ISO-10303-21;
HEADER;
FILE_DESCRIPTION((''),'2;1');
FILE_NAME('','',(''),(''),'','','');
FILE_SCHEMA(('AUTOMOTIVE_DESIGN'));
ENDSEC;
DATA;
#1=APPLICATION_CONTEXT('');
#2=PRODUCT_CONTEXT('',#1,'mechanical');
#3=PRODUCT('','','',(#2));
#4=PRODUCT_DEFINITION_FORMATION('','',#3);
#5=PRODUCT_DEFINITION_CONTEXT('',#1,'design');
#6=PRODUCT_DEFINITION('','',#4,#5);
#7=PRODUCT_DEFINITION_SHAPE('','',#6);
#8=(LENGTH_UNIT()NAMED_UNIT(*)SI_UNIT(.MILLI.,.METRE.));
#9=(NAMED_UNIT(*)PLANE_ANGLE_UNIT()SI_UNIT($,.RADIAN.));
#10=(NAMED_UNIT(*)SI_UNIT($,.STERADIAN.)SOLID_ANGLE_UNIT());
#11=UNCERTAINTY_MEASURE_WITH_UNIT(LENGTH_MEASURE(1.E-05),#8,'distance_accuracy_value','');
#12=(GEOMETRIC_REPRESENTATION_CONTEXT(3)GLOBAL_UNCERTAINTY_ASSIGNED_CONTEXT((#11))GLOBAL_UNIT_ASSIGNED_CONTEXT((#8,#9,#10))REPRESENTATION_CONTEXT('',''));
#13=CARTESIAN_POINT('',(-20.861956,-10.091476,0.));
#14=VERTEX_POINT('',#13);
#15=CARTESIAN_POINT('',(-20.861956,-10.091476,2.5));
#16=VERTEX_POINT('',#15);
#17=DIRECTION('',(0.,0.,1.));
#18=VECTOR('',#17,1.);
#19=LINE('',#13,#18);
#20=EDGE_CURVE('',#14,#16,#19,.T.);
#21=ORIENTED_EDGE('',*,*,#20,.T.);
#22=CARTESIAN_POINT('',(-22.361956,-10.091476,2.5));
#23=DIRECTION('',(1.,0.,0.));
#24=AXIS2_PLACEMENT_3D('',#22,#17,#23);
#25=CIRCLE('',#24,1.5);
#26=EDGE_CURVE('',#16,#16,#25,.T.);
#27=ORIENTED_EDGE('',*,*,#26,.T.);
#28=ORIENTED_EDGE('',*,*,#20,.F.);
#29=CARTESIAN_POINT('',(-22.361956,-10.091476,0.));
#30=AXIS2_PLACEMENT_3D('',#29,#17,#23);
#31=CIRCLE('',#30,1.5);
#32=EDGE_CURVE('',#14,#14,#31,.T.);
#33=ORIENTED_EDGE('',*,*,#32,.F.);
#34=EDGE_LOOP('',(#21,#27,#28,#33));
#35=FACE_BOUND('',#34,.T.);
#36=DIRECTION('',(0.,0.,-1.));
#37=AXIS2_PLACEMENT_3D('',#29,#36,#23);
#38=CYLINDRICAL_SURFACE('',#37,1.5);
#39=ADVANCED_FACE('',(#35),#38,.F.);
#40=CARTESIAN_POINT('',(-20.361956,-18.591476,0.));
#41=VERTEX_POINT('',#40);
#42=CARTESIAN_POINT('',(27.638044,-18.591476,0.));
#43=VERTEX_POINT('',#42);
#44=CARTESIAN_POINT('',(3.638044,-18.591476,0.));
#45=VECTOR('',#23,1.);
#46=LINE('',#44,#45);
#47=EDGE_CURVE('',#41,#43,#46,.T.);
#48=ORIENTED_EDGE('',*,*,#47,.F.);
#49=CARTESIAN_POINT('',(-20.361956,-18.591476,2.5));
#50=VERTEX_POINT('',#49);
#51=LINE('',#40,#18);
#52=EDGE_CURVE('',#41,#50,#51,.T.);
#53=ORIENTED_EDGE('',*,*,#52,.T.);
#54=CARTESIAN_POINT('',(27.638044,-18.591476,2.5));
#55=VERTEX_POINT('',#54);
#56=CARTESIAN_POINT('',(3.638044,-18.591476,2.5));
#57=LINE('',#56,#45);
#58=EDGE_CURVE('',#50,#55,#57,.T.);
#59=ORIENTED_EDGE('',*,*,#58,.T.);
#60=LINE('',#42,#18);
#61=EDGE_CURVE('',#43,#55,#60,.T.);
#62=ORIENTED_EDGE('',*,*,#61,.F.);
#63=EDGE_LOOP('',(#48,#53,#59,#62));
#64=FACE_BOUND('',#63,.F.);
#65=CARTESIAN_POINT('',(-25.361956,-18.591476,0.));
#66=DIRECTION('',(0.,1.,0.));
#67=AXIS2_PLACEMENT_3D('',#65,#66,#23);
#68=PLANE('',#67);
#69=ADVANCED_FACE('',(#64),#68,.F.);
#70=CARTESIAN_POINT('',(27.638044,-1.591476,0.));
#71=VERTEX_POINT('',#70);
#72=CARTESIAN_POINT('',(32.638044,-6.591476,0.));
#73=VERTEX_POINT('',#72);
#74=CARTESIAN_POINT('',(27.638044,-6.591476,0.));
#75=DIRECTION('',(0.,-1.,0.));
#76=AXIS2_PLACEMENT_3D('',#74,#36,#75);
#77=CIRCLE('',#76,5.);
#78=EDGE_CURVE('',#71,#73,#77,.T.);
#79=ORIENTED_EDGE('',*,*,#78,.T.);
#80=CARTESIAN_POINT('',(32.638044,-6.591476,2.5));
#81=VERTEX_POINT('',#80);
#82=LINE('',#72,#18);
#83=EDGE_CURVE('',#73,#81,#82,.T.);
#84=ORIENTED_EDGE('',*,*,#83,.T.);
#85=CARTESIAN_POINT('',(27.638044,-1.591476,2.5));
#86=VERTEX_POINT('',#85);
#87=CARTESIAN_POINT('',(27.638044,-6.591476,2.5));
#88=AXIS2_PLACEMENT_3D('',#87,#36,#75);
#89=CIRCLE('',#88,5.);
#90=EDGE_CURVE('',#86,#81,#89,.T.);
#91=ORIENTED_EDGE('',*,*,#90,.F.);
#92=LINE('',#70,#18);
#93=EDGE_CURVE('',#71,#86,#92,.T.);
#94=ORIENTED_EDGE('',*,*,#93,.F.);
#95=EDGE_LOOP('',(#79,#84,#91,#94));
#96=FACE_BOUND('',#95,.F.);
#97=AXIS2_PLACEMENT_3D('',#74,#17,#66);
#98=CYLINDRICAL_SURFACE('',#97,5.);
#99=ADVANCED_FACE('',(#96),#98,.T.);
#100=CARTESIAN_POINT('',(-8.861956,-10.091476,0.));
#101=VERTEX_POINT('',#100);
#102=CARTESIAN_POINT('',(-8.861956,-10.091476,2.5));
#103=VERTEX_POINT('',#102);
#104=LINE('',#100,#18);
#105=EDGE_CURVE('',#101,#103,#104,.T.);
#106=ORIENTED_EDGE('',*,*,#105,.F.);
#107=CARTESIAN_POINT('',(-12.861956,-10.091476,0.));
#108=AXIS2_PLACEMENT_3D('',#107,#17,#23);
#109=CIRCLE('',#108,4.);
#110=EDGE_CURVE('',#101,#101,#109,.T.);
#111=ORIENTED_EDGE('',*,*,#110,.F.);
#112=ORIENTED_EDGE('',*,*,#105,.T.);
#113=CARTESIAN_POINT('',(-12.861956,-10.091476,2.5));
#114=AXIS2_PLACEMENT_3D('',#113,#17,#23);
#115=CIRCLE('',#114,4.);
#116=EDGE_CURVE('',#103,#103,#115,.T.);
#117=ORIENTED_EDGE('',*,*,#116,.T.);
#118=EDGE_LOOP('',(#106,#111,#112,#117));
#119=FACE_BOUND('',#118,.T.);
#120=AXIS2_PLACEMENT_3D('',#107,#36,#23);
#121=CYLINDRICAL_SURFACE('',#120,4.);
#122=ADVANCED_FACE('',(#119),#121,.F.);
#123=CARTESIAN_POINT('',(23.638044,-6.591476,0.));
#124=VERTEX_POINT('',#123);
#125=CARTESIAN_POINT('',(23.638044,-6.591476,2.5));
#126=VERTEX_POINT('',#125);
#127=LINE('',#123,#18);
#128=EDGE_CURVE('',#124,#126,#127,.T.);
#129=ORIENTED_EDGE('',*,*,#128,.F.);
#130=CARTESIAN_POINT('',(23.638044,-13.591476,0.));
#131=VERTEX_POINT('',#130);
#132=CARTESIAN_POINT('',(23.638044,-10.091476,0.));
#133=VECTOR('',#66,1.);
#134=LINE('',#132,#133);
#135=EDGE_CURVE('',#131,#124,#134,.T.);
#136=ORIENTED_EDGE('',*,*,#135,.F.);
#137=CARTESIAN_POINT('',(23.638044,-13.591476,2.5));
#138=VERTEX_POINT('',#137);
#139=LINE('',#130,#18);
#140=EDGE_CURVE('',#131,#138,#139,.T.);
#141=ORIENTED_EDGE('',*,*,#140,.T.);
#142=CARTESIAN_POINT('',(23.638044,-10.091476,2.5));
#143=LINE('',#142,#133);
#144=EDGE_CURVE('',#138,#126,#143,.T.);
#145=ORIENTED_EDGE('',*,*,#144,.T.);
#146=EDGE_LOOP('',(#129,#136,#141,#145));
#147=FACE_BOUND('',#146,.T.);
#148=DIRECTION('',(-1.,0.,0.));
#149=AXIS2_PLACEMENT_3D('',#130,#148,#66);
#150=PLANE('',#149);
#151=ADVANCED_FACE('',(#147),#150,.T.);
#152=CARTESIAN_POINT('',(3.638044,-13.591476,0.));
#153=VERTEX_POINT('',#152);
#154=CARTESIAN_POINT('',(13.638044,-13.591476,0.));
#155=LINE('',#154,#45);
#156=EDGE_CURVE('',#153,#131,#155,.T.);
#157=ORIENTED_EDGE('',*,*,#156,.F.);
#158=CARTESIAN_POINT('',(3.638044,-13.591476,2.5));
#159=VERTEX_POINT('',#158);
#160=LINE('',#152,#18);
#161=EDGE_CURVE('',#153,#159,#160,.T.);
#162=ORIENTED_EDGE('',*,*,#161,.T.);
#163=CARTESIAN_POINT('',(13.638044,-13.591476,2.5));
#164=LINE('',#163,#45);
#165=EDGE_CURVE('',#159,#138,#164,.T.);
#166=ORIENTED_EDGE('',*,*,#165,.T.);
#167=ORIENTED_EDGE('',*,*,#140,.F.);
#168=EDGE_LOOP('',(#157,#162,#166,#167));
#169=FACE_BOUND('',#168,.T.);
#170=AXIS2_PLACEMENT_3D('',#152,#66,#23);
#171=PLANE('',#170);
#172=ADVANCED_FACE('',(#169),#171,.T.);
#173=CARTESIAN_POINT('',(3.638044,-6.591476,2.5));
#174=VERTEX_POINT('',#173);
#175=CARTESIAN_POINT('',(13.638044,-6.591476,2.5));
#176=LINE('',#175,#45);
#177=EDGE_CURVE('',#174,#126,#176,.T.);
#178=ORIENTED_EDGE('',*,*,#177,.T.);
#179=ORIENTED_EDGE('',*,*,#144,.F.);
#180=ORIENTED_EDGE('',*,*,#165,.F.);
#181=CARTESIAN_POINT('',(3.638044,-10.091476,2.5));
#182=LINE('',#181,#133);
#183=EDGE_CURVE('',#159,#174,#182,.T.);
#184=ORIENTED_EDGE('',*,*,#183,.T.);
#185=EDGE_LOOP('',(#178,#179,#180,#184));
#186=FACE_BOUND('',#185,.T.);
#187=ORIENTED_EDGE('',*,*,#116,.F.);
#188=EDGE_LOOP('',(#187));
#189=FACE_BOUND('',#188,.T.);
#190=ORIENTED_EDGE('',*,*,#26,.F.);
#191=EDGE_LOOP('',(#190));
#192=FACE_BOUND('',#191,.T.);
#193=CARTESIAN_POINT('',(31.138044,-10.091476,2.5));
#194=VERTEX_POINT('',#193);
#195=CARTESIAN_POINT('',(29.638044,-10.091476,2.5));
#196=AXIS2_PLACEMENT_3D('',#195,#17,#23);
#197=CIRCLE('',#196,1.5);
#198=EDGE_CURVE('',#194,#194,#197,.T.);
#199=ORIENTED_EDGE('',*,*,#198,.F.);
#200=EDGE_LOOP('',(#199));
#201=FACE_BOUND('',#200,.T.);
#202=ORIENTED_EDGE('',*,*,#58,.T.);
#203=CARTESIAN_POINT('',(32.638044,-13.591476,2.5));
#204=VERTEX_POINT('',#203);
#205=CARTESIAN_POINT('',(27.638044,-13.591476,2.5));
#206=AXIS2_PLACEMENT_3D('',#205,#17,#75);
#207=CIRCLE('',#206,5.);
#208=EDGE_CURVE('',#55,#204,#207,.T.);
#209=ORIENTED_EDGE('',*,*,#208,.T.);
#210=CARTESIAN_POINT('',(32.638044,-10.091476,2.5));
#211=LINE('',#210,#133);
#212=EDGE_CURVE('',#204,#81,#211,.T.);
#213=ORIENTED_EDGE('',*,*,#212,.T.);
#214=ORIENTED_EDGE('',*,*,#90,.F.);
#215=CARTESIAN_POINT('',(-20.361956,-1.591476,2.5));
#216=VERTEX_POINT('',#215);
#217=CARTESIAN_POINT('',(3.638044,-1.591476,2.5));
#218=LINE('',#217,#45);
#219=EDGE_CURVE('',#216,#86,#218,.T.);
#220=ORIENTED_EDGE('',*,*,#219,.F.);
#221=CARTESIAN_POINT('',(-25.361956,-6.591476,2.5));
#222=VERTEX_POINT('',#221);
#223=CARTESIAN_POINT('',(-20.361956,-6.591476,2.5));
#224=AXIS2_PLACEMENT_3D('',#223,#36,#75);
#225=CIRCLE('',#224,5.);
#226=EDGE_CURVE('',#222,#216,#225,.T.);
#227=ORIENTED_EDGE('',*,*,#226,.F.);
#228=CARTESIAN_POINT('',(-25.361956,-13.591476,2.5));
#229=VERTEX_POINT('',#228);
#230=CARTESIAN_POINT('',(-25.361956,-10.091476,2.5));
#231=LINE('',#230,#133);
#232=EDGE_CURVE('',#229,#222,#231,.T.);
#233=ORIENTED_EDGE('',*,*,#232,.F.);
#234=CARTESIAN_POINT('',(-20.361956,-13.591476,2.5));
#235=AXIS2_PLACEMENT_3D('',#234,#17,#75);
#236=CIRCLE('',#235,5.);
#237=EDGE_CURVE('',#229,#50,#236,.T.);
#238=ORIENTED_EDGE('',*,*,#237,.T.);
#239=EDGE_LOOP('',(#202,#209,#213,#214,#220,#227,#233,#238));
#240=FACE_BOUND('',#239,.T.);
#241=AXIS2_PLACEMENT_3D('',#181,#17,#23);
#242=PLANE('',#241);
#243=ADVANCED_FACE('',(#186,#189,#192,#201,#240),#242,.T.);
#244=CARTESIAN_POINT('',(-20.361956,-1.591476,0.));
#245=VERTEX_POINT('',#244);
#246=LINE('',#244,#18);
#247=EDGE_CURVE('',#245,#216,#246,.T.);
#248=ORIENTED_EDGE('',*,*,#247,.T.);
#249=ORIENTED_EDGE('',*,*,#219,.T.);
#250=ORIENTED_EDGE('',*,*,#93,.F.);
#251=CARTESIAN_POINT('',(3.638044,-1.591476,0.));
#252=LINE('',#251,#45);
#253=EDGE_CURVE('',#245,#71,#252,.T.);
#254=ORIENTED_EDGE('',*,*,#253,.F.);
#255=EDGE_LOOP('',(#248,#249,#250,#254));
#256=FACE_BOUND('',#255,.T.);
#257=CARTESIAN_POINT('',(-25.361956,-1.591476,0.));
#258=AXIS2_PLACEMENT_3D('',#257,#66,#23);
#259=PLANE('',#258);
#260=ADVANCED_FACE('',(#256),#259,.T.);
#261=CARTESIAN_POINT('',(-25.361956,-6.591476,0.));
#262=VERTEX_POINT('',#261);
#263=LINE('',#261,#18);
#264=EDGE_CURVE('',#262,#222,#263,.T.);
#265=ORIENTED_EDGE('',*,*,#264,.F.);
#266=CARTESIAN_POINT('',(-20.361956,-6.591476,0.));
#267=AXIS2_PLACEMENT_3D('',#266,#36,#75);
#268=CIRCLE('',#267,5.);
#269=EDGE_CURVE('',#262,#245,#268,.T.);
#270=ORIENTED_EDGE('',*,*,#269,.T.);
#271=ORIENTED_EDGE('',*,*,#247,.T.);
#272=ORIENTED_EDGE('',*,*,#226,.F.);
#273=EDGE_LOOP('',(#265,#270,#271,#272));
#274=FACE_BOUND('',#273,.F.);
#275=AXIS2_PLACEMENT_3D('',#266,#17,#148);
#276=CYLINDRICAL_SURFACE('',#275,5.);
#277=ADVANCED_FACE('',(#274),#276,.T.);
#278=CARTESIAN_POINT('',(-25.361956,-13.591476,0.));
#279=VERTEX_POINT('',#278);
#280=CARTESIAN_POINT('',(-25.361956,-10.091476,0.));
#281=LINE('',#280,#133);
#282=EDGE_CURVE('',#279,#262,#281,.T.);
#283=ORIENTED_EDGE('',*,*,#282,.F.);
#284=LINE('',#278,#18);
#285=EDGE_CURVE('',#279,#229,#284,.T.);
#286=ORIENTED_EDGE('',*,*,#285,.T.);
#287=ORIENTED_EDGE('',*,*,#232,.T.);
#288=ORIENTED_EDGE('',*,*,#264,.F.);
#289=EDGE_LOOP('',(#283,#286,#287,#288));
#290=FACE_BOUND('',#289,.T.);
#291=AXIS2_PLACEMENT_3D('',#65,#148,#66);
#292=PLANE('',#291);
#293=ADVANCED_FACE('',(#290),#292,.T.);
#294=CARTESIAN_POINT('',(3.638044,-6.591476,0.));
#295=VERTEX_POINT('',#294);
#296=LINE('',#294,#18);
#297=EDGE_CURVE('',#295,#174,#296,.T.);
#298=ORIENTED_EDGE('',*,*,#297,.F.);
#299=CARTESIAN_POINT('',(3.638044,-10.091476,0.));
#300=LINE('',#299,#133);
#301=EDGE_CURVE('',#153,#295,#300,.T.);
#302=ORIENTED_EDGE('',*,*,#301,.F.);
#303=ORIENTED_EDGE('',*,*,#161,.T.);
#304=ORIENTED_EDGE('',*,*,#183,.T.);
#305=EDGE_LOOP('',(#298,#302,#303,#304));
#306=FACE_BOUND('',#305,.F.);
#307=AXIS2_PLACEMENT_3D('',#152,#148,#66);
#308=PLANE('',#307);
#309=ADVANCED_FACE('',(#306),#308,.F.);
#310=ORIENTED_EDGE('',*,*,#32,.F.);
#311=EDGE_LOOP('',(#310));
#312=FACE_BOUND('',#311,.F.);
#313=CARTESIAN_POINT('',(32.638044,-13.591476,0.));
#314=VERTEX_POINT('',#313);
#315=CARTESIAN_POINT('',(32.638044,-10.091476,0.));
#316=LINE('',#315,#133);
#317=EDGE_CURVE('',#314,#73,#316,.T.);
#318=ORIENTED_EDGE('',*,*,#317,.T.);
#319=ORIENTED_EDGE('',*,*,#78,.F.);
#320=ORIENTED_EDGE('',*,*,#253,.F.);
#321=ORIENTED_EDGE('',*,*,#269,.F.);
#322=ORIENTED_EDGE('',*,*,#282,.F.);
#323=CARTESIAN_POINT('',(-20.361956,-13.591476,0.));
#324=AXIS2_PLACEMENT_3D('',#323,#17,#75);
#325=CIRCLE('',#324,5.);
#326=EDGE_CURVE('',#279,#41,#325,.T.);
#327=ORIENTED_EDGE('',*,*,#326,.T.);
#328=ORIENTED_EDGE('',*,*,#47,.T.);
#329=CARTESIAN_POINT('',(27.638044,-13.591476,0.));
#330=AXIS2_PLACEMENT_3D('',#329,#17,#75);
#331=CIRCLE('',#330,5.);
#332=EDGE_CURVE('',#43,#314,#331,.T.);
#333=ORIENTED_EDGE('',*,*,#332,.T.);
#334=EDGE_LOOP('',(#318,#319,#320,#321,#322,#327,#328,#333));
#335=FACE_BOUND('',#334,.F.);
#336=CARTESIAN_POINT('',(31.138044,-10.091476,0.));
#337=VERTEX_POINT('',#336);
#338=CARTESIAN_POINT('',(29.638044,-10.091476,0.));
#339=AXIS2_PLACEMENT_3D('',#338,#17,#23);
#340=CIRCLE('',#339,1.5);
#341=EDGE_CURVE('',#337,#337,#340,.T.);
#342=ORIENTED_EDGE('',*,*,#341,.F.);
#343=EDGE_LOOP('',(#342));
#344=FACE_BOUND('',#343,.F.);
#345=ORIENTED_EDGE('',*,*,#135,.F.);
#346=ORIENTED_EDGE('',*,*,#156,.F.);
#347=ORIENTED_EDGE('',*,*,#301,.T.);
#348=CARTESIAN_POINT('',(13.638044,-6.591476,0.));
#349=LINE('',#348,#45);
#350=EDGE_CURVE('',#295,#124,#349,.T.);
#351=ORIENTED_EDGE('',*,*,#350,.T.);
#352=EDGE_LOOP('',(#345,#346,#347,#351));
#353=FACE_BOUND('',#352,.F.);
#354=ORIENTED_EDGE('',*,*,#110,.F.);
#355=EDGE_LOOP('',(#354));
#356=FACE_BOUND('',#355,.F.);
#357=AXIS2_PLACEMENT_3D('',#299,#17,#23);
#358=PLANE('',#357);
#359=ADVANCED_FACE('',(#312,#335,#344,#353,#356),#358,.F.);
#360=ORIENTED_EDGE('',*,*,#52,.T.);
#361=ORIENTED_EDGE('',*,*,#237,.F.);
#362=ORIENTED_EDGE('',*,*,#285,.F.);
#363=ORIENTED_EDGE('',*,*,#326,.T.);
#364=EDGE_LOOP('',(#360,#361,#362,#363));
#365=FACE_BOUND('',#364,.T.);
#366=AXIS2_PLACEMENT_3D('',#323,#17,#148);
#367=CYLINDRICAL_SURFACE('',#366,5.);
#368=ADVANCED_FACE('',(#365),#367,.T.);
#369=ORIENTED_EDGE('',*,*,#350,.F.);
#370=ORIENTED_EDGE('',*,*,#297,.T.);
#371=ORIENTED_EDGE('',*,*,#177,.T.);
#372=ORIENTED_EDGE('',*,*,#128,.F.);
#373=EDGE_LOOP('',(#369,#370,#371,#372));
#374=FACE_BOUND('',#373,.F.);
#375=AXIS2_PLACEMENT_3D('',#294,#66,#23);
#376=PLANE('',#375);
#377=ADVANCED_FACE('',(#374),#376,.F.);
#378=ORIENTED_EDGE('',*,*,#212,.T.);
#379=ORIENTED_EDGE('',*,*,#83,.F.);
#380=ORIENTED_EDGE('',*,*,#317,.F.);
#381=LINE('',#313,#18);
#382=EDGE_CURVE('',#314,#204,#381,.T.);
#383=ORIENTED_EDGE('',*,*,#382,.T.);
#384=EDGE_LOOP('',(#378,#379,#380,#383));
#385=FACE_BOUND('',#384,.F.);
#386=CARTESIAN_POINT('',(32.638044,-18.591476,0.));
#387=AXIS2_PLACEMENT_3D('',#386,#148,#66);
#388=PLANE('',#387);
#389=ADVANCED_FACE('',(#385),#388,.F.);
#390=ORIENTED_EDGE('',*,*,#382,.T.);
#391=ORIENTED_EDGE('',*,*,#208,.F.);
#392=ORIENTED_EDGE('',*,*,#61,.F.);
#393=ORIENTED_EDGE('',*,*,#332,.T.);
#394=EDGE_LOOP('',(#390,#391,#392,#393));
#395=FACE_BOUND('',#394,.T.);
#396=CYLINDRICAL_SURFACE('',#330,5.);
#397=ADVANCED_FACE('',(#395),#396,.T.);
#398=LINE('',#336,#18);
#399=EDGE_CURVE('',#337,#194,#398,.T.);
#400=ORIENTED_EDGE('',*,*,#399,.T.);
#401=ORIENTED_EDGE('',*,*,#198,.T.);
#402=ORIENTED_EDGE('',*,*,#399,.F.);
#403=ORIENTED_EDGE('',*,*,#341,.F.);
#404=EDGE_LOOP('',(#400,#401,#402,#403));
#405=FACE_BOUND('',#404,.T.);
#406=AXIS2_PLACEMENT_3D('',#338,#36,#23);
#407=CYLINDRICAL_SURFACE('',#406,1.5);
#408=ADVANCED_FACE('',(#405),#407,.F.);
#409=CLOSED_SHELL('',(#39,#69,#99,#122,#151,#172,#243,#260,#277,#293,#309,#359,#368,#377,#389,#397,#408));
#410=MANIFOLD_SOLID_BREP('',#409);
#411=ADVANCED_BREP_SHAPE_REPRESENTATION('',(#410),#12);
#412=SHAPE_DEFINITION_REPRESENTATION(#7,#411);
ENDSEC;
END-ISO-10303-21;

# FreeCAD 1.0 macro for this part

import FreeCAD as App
import Part
import Sketcher
from FreeCAD import Vector
Q = App.Units.Quantity


def edges_at(feature, points):
    """Names of the edges that pass closest to the given points."""
    edges = feature.Shape.Edges
    near = lambda p: min(range(len(edges)), key=lambda i: edges[i].distToShape(Part.Vertex(*p))[0])
    return sorted({f"Edge{near(p) + 1}" for p in points})


def add_polygon(sketch, points):
    """Adds a closed chain of lines whose ends are joined by coincident constraints."""
    first, n = sketch.GeometryCount, len(points)
    for a, b in zip(points, points[1:] + points[:1]):
        sketch.addGeometry(Part.LineSegment(App.Vector(*a, 0), App.Vector(*b, 0)), False)
    for i in range(n):
        sketch.addConstraint(Sketcher.Constraint("Coincident", first + i, 2, first + (i + 1) % n, 1))

doc = App.newDocument("Part")
body = doc.addObject("PartDesign::Body", "Body")

# Sketch on XY plane
sketch1 = doc.addObject("Sketcher::SketchObject", "Sketch")
body.addObject(sketch1)
sketch1.AttachmentSupport = (doc.XY_Plane, [""])
sketch1.MapMode = "FlatFace"
add_polygon(sketch1, [(-25.361956, -1.591476), (-25.361956, -18.591476), (32.638044, -18.591476), (32.638044, -1.591476)])  # lines 0-3
sketch1.addGeometry(Part.Circle(Vector(-22.361956, -10.091476, 0), Vector(0, 0, 1), 1.5), False)  # 4
sketch1.addGeometry(Part.Circle(Vector(-12.861956, -10.091476, 0), Vector(0, 0, 1), 4), False)  # 5
add_polygon(sketch1, [(23.638044, -13.591476), (3.638044, -13.591476), (3.638044, -6.591476), (23.638044, -6.591476)])  # lines 6-9
sketch1.addGeometry(Part.Circle(Vector(29.638044, -10.091476, 0), Vector(0, 0, 1), 1.5), False)  # 10
sketch1.addConstraint([
    Sketcher.Constraint("Vertical", 0),
    Sketcher.Constraint("Horizontal", 1),
    Sketcher.Constraint("Vertical", 2),
    Sketcher.Constraint("Horizontal", 3),
    Sketcher.Constraint("Horizontal", 6),
    Sketcher.Constraint("Vertical", 7),
    Sketcher.Constraint("Horizontal", 8),
    Sketcher.Constraint("Vertical", 9),
    Sketcher.Constraint("Equal", 4, 10),
    Sketcher.Constraint("Horizontal", 4, 3, 5, 3),
    Sketcher.Constraint("Horizontal", 5, 3, 10, 3),
    Sketcher.Constraint("Diameter", 4, Q("3 mm")),
    Sketcher.Constraint("Diameter", 5, Q("8 mm")),
    Sketcher.Constraint("DistanceX", 1, 1, 1, 2, Q("58 mm")),
    Sketcher.Constraint("DistanceX", 6, 2, 6, 1, Q("20 mm")),
    Sketcher.Constraint("DistanceY", 0, 2, 0, 1, Q("17 mm")),
    Sketcher.Constraint("DistanceY", 7, 1, 7, 2, Q("7 mm")),
    Sketcher.Constraint("DistanceX", 4, 3, 10, 3, Q("52 mm")),
    Sketcher.Constraint("DistanceX", 0, 2, 4, 3, Q("3 mm")),
    Sketcher.Constraint("DistanceX", 4, 3, 6, 2, Q("26 mm")),
    Sketcher.Constraint("DistanceY", 0, 2, 6, 2, Q("5 mm")),
    Sketcher.Constraint("DistanceX", 4, 3, 5, 3, Q("9.5 mm")),
    Sketcher.Constraint("DistanceY", 0, 2, 4, 3, Q("8.5 mm")),
    Sketcher.Constraint("DistanceX", 4, 3, -1, 1, Q("22.361956 mm")),
    Sketcher.Constraint("DistanceY", 4, 3, -1, 1, Q("10.091476 mm")),
])
pad1 = doc.addObject("PartDesign::Pad", "Pad")
body.addObject(pad1)
pad1.Profile = sketch1
pad1.Length = 2.5
doc.recompute()

fillet = doc.addObject("PartDesign::Fillet", "Fillet")
body.addObject(fillet)
fillet.Base = (pad1, edges_at(pad1, [
    (-25.362, -1.591, 1.25),
    (32.638, -1.591, 1.25),
    (-25.362, -18.591, 1.25),
    (32.638, -18.591, 1.25),
]))
fillet.Radius = 5

doc.recompute()
